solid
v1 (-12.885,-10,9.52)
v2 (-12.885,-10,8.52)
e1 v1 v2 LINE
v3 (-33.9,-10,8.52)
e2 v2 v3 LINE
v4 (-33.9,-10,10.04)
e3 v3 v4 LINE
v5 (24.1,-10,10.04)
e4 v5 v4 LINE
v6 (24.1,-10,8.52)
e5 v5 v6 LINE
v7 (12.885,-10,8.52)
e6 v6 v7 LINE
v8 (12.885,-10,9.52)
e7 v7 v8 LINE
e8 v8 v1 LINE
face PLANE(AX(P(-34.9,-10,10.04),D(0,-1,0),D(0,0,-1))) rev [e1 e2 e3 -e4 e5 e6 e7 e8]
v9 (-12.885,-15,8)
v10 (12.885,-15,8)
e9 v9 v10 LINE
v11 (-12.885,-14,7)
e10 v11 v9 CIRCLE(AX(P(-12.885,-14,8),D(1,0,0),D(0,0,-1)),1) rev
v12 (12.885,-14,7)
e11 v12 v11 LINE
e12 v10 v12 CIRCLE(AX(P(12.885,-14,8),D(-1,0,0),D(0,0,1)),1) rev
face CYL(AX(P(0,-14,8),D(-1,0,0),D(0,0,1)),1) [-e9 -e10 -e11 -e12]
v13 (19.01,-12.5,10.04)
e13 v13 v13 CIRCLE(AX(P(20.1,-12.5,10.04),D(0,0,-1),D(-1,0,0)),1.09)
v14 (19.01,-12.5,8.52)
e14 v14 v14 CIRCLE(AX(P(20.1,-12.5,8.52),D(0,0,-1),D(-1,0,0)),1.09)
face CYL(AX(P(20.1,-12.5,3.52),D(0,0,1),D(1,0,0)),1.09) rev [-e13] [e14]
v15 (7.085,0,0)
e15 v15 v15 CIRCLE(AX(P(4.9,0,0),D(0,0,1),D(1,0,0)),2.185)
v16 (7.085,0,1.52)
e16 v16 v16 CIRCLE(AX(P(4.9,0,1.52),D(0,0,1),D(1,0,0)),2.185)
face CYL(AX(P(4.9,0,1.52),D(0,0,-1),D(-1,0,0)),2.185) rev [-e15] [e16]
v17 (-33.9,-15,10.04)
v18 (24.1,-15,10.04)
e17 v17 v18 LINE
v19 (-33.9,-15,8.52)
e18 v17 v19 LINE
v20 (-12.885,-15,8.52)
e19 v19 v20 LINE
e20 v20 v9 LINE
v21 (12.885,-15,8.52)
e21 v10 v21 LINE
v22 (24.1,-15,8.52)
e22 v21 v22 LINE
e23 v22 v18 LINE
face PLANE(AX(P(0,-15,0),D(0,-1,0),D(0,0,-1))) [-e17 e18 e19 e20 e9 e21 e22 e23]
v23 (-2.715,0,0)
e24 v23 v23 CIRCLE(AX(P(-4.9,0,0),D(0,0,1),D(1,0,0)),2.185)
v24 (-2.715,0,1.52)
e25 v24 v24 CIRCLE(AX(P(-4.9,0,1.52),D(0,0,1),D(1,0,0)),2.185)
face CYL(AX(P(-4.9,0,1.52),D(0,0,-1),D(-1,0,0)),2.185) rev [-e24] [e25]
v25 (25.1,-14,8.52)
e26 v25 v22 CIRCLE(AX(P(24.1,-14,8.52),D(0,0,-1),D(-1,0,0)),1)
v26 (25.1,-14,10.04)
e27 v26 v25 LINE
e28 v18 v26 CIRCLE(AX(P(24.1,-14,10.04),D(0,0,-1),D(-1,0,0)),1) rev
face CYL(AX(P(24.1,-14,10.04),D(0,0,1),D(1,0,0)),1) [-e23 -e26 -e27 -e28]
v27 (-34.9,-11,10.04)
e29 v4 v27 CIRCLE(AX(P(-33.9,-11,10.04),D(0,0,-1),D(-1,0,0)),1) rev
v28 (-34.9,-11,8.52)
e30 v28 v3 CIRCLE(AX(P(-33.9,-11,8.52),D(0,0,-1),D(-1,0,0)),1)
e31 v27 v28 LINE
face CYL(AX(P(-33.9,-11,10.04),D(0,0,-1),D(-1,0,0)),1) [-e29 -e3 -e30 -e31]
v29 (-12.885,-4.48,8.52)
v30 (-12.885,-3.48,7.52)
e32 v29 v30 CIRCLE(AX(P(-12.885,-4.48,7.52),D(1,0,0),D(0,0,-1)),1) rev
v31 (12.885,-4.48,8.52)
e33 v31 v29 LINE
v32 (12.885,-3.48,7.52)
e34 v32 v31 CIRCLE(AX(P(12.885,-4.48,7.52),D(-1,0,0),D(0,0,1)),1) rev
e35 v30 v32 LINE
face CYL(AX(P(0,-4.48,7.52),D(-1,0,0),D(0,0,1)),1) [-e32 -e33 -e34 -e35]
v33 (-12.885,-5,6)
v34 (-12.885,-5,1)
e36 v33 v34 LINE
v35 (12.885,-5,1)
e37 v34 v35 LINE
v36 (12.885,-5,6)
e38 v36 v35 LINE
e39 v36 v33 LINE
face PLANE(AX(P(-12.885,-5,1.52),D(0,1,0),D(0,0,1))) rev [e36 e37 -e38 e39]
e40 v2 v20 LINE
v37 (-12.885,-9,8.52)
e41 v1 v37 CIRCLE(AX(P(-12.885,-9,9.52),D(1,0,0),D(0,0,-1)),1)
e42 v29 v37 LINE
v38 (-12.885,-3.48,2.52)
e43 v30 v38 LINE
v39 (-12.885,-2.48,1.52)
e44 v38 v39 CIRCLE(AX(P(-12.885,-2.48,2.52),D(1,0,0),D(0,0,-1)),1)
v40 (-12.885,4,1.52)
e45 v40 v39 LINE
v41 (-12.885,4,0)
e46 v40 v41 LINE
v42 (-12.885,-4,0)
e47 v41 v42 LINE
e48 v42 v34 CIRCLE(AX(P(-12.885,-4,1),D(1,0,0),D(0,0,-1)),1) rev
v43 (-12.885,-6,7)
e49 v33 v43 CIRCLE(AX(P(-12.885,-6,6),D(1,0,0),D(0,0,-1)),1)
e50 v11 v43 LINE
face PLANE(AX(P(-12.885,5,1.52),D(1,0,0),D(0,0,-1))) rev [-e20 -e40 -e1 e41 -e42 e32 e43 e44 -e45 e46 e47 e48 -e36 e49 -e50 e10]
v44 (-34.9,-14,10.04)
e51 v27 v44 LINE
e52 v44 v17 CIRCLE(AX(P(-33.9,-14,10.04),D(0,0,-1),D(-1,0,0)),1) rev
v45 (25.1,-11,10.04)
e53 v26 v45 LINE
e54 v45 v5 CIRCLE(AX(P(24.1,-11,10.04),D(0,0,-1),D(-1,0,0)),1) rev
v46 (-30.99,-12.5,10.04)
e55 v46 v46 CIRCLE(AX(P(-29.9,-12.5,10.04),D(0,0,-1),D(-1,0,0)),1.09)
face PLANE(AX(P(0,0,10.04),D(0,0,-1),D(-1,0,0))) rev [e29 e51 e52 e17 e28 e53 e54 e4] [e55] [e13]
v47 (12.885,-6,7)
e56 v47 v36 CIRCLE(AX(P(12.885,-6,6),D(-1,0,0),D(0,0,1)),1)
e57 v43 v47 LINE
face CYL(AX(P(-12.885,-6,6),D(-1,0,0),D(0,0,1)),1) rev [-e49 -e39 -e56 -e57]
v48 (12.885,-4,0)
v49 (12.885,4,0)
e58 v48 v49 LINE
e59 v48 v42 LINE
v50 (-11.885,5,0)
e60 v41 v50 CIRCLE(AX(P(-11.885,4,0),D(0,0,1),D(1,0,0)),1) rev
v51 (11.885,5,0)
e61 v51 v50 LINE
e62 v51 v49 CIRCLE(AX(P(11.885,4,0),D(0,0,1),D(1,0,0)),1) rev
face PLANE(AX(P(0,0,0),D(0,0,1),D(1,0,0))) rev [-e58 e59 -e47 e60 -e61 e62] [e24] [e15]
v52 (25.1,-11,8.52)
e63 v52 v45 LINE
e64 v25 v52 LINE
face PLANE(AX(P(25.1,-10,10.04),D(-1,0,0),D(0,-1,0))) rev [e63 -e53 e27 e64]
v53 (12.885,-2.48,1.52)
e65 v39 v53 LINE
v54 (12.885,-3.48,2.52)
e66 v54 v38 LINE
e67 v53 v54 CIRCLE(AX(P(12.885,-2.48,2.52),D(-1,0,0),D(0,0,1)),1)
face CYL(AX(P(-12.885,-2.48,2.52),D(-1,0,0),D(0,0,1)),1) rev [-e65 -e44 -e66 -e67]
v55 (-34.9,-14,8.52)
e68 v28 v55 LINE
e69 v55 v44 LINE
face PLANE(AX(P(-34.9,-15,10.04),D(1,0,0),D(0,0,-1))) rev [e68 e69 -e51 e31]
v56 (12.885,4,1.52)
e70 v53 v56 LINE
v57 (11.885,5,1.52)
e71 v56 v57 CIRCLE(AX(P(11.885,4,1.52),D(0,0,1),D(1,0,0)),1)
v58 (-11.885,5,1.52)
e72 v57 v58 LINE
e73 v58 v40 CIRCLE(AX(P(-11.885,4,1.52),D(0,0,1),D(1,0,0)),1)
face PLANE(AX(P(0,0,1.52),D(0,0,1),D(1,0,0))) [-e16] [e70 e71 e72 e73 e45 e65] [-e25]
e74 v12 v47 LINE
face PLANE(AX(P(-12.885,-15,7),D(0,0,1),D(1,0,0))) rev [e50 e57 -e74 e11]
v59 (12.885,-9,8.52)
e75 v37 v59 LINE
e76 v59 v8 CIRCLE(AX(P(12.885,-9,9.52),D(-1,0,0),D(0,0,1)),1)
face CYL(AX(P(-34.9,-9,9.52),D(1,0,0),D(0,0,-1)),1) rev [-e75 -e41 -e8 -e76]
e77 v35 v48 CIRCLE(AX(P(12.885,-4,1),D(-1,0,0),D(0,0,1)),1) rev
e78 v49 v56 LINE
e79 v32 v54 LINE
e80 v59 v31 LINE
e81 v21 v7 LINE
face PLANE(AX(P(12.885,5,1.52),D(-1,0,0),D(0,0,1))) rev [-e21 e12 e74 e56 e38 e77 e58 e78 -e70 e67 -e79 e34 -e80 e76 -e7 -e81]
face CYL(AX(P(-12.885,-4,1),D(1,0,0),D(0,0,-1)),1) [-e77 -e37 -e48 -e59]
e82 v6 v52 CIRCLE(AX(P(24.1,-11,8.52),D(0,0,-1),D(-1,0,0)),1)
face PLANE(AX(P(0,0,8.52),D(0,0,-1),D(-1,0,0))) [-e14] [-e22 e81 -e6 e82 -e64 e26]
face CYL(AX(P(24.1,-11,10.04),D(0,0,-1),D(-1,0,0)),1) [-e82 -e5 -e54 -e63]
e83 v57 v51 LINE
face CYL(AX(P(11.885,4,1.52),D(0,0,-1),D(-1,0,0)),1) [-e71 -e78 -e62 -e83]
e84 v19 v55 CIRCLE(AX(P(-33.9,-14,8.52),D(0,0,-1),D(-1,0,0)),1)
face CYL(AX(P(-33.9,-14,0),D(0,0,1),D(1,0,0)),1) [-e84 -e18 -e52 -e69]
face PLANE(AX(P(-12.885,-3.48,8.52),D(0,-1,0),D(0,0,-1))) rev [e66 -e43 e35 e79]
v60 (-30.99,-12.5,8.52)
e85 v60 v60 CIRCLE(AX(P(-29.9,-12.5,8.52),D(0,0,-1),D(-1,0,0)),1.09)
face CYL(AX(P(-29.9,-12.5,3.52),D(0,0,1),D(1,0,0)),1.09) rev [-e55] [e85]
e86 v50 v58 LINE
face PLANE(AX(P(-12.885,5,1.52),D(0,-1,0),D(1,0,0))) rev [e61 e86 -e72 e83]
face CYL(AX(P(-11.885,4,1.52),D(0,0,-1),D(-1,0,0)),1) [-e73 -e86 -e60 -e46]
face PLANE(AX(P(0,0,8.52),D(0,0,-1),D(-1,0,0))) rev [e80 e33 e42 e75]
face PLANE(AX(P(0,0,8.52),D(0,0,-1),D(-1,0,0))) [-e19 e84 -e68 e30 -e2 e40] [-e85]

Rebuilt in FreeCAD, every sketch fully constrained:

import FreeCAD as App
import Part
import Sketcher
from FreeCAD import Vector


def edges_at(feature, points):
    """Names of the edges that pass closest to the given points."""
    edges = feature.Shape.Edges
    near = lambda p: min(range(len(edges)), key=lambda i: edges[i].distToShape(Part.Vertex(*p))[0])
    return sorted({f"Edge{near(p) + 1}" for p in points})


def add_polygon(sketch, points):
    """Adds a closed chain of lines whose ends are joined by coincident constraints."""
    first, n = sketch.GeometryCount, len(points)
    for a, b in zip(points, points[1:] + points[:1]):
        sketch.addGeometry(Part.LineSegment(App.Vector(*a, 0), App.Vector(*b, 0)), False)
    for i in range(n):
        sketch.addConstraint(Sketcher.Constraint("Coincident", first + i, 2, first + (i + 1) % n, 1))

doc = App.newDocument("Part")
params = doc.addObject("Spreadsheet::Sheet", "Params")
for row, (alias, value) in enumerate([
    ("sketch1_diameter", "4.37 mm"),
    ("sketch1_height", "10 mm"),
    ("sketch1_width", "25.77 mm"),
    ("pad1_length", "1.52 mm"),
    ("sketch2_width", "25.77 mm"),
    ("sketch2_height", "1.52 mm"),
    ("pad2_length", "7 mm"),
    ("sketch3_width", "25.77 mm"),
    ("sketch3_height", "1.52 mm"),
    ("pad3_length", "10 mm"),
    ("sketch4_width", "60 mm"),
    ("sketch4_height", "5 mm"),
    ("pad4_length", "1.52 mm"),
    ("sketch5_diameter", "2.18 mm"),
    ("pocket1_length", "10 mm"),
    ("fillet_radius", "1 mm"),
], start=1):
    params.set(f"A{row}", alias)
    params.set(f"B{row}", "=" + value)
    params.setAlias(f"B{row}", alias)

body = doc.addObject("PartDesign::Body", "Body")

# Sketch on XY plane
sketch1 = doc.addObject("Sketcher::SketchObject", "Sketch")
body.addObject(sketch1)
sketch1.AttachmentSupport = (doc.XY_Plane, [""])
sketch1.MapMode = "FlatFace"
add_polygon(sketch1, [(-12.9, 5), (-12.9, -5), (12.9, -5), (12.9, 5)])  # lines 0-3
sketch1.addGeometry(Part.Circle(Vector(-4.9, 0, 0), Vector(0, 0, 1), 2.2), False)  # 4
sketch1.addGeometry(Part.Circle(Vector(4.9, 0, 0), Vector(0, 0, 1), 2.2), False)  # 5
sketch1.addConstraint([
    Sketcher.Constraint("Vertical", 0),
    Sketcher.Constraint("Horizontal", 1),
    Sketcher.Constraint("Vertical", 2),
    Sketcher.Constraint("Horizontal", 3),
    Sketcher.Constraint("Equal", 4, 5),
    Sketcher.Constraint("Symmetric", 4, 3, 5, 3, -1, 1),
    Sketcher.Constraint("Symmetric", 0, 2, 2, 2, -1, 1),
    Sketcher.Constraint("PointOnObject", 4, 3, -1),
    Sketcher.Constraint("Diameter", 4, 4.37),
    Sketcher.Constraint("DistanceY", 0, 2, 0, 1, 10.0),
    Sketcher.Constraint("DistanceX", 1, 1, 1, 2, 25.77),
    Sketcher.Constraint("DistanceX", 4, 3, -1, 1, 4.9),
])
sketch1.setExpression("Constraints[12]", "Params.sketch1_diameter")
sketch1.setExpression("Constraints[13]", "Params.sketch1_height")
sketch1.setExpression("Constraints[14]", "Params.sketch1_width")
pad1 = doc.addObject("PartDesign::Pad", "Pad")
body.addObject(pad1)
pad1.Profile = sketch1
pad1.setExpression("Length", "Params.pad1_length")

# Sketch on XY plane
sketch2 = doc.addObject("Sketcher::SketchObject", "Sketch001")
body.addObject(sketch2)
sketch2.AttachmentSupport = (doc.XY_Plane, [""])
sketch2.MapMode = "FlatFace"
sketch2.AttachmentOffset = App.Placement(Vector(0, 0, 1.52), App.Rotation())
add_polygon(sketch2, [(-12.9, -3.5), (-12.9, -5), (12.9, -5), (12.9, -3.5)])  # lines 0-3
sketch2.addConstraint([
    Sketcher.Constraint("Vertical", 0),
    Sketcher.Constraint("Horizontal", 1),
    Sketcher.Constraint("Vertical", 2),
    Sketcher.Constraint("Horizontal", 3),
    Sketcher.Constraint("DistanceY", 0, 2, -1, 1, 5.0),
    Sketcher.Constraint("DistanceX", 1, 1, 1, 2, 25.77),
    Sketcher.Constraint("DistanceY", 0, 2, 0, 1, 1.52),
    Sketcher.Constraint("DistanceX", 0, 2, -1, 1, 12.885),
])
sketch2.setExpression("Constraints[9]", "Params.sketch2_width")
sketch2.setExpression("Constraints[10]", "Params.sketch2_height")
pad2 = doc.addObject("PartDesign::Pad", "Pad001")
body.addObject(pad2)
pad2.Profile = sketch2
pad2.setExpression("Length", "Params.pad2_length")

# Sketch on XZ plane
sketch3 = doc.addObject("Sketcher::SketchObject", "Sketch002")
body.addObject(sketch3)
sketch3.AttachmentSupport = (doc.XZ_Plane, [""])
sketch3.MapMode = "FlatFace"
sketch3.AttachmentOffset = App.Placement(Vector(0, 0, 5), App.Rotation())
add_polygon(sketch3, [(12.9, 7), (12.9, 8.5), (-12.9, 8.5), (-12.9, 7)])  # lines 0-3
sketch3.addConstraint([
    Sketcher.Constraint("Vertical", 0),
    Sketcher.Constraint("Horizontal", 1),
    Sketcher.Constraint("Vertical", 2),
    Sketcher.Constraint("Horizontal", 3),
    Sketcher.Constraint("DistanceY", -1, 1, 2, 2, 7.0),
    Sketcher.Constraint("DistanceX", 1, 2, 1, 1, 25.77),
    Sketcher.Constraint("DistanceY", 0, 1, 0, 2, 1.52),
    Sketcher.Constraint("DistanceX", -1, 1, 0, 2, 12.885),
])
sketch3.setExpression("Constraints[9]", "Params.sketch3_width")
sketch3.setExpression("Constraints[10]", "Params.sketch3_height")
pad3 = doc.addObject("PartDesign::Pad", "Pad002")
body.addObject(pad3)
pad3.Profile = sketch3
pad3.setExpression("Length", "Params.pad3_length")

# Sketch on XY plane
sketch4 = doc.addObject("Sketcher::SketchObject", "Sketch003")
body.addObject(sketch4)
sketch4.AttachmentSupport = (doc.XY_Plane, [""])
sketch4.MapMode = "FlatFace"
sketch4.AttachmentOffset = App.Placement(Vector(0, 0, 8.52), App.Rotation())
add_polygon(sketch4, [(-35, -15), (25, -15), (25, -10), (-35, -10)])  # lines 0-3
sketch4.addConstraint([
    Sketcher.Constraint("Horizontal", 0),
    Sketcher.Constraint("Vertical", 1),
    Sketcher.Constraint("Horizontal", 2),
    Sketcher.Constraint("Vertical", 3),
    Sketcher.Constraint("DistanceX", 0, 1, 0, 2, 60.0),
    Sketcher.Constraint("DistanceY", 1, 1, 1, 2, 5.0),
    Sketcher.Constraint("DistanceY", 0, 2, -1, 1, 15.0),
    Sketcher.Constraint("DistanceX", -1, 1, 0, 2, 25.1),
])
sketch4.setExpression("Constraints[8]", "Params.sketch4_width")
sketch4.setExpression("Constraints[9]", "Params.sketch4_height")
pad4 = doc.addObject("PartDesign::Pad", "Pad003")
body.addObject(pad4)
pad4.Profile = sketch4
pad4.setExpression("Length", "Params.pad4_length")

# Sketch on XY plane
sketch5 = doc.addObject("Sketcher::SketchObject", "Sketch004")
body.addObject(sketch5)
sketch5.AttachmentSupport = (doc.XY_Plane, [""])
sketch5.MapMode = "FlatFace"
sketch5.AttachmentOffset = App.Placement(Vector(0, 0, 8.52), App.Rotation())
sketch5.addGeometry([
    Part.Circle(Vector(-29.9, -12.5, 0), Vector(0, 0, 1), 1.1),
    Part.Circle(Vector(20.1, -12.5, 0), Vector(0, 0, 1), 1.1),
], False)
sketch5.addConstraint([
    Sketcher.Constraint("Equal", 0, 1),
    Sketcher.Constraint("Horizontal", 0, 3, 1, 3),
    Sketcher.Constraint("Diameter", 0, 2.18),
    Sketcher.Constraint("DistanceX", 0, 3, 1, 3, 50.0),
    Sketcher.Constraint("DistanceX", 0, 3, -1, 1, 29.9),
    Sketcher.Constraint("DistanceY", 0, 3, -1, 1, 12.5),
])
sketch5.setExpression("Constraints[2]", "Params.sketch5_diameter")
pocket1 = doc.addObject("PartDesign::Pocket", "Pocket")
body.addObject(pocket1)
pocket1.Profile = sketch5
pocket1.setExpression("Length", "Params.pocket1_length")
pocket1.Midplane = True
doc.recompute()

fillet = doc.addObject("PartDesign::Fillet", "Fillet")
body.addObject(fillet)
fillet.Base = (pocket1, edges_at(pocket1, [
    (0, -3.48, 8.52),
    (0, -10, 8.52),
    (25.1, -15, 9.28),
    (25.1, -10, 9.28),
    (-34.9, -15, 9.28),
    (-34.9, -10, 9.28),
    (0, -5, 7),
    (0, -5, 0),
    (0, -3.48, 1.52),
    (-12.885, 5, 0.76),
    (12.885, 5, 0.76),
    (0, -15, 7),
]))
fillet.setExpression("Radius", "Params.fillet_radius")

doc.recompute()
